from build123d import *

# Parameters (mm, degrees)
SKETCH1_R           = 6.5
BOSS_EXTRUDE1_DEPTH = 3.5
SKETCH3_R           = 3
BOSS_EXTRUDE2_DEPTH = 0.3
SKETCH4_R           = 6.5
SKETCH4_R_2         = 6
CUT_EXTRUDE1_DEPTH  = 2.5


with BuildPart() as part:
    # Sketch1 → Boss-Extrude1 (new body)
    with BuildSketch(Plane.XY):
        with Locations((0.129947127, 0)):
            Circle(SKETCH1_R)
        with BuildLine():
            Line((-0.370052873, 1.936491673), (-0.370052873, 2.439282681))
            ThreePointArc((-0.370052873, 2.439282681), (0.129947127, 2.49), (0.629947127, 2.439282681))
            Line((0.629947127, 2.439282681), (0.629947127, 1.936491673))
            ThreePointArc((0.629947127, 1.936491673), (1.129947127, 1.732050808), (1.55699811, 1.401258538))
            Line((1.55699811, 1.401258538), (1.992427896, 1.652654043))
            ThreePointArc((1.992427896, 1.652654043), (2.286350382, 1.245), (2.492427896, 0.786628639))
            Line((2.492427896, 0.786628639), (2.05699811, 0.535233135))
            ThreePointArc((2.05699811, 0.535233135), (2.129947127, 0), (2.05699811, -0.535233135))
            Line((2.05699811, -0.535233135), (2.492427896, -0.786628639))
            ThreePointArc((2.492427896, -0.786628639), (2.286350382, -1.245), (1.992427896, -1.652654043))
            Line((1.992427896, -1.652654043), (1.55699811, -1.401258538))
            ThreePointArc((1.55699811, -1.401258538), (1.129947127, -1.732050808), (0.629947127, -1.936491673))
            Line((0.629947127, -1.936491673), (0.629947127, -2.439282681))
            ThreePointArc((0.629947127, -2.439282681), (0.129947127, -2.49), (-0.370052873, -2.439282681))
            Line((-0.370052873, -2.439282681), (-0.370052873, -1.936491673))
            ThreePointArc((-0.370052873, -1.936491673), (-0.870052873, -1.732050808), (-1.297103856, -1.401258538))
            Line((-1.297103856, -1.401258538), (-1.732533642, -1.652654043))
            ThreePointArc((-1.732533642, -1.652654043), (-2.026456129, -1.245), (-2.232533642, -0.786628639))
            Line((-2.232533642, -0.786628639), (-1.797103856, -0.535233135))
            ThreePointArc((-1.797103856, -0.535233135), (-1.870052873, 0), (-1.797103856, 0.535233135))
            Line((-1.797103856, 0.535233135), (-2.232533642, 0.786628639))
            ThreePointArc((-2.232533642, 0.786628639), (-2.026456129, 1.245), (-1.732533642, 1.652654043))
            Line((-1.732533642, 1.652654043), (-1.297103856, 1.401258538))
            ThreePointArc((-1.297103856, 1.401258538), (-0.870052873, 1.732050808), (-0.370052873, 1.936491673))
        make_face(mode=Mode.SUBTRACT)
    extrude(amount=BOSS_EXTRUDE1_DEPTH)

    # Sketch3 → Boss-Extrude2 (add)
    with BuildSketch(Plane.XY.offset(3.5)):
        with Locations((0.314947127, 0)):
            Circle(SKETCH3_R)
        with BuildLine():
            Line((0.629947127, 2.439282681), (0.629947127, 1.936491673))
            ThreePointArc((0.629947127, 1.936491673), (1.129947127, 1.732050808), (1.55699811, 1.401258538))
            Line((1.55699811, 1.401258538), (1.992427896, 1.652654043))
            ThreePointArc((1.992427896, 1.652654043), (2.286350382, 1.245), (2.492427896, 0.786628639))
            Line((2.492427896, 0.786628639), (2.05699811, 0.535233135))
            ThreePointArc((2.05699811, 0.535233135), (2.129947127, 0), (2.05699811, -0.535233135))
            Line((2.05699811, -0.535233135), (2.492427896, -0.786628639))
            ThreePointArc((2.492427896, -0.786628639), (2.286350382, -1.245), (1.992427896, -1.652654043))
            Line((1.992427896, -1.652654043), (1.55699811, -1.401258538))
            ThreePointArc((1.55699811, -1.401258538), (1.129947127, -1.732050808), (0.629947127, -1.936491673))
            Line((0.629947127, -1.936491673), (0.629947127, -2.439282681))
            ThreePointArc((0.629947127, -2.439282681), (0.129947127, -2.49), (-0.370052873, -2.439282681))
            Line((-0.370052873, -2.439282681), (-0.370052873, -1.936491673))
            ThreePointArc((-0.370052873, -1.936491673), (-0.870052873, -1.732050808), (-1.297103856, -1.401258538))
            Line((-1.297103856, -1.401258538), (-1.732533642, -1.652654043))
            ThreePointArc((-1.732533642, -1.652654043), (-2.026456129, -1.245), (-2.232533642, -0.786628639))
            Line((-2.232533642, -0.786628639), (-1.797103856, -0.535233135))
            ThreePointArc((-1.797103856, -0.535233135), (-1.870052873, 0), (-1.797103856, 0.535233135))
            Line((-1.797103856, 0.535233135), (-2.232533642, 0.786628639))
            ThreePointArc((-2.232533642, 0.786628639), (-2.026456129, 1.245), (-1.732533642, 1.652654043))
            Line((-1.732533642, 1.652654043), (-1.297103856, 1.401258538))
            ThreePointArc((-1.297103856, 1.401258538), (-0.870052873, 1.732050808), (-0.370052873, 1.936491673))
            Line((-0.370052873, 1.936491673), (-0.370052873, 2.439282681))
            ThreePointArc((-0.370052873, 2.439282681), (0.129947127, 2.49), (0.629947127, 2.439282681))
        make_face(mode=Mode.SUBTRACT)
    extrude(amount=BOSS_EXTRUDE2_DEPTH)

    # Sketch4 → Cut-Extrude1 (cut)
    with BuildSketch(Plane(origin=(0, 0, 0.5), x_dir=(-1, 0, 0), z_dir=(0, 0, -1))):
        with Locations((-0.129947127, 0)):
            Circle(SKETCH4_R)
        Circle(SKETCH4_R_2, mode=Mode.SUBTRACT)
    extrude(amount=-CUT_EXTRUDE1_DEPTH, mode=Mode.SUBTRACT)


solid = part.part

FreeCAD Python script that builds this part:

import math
import FreeCAD as App
import Part
import Sketcher
Q = App.Units.Quantity

doc = App.newDocument("Part")
body = doc.addObject("PartDesign::Body", "Body")

# Sketch on XY plane
sketch1 = body.newObject("Sketcher::SketchObject", "Sketch")
sketch1.AttachmentSupport = (doc.getObject("XY_Plane"), [""])
sketch1.MapMode = "FlatFace"
sketch1.addGeometry(Part.Circle(App.Vector(0.1, 0, 0), App.Vector(0, 0, 1), 6.5), False)
sketch1.addGeometry(Part.ArcOfCircle(Part.Circle(App.Vector(0.1, 0, 0), App.Vector(0, 0, 1), 2), math.radians(104), math.radians(136)), False)
sketch1.addGeometry(Part.LineSegment(App.Vector(-0.4, 1.9, 0), App.Vector(-0.4, 2.4, 0)), False)
sketch1.addGeometry(Part.ArcOfCircle(Part.Circle(App.Vector(0.1, 0, 0), App.Vector(0, 0, 1), 2.5), math.radians(78), math.radians(102)), False)
sketch1.addGeometry(Part.LineSegment(App.Vector(0.6, 2.4, 0), App.Vector(0.6, 1.9, 0)), False)
sketch1.addGeometry(Part.ArcOfCircle(Part.Circle(App.Vector(0.1, 0, 0), App.Vector(0, 0, 1), 2), math.radians(44), math.radians(76)), False)
sketch1.addGeometry(Part.LineSegment(App.Vector(1.6, 1.4, 0), App.Vector(2, 1.7, 0)), False)
sketch1.addGeometry(Part.ArcOfCircle(Part.Circle(App.Vector(0.1, 0, 0), App.Vector(0, 0, 1), 2.5), math.radians(18), math.radians(42)), False)
sketch1.addGeometry(Part.LineSegment(App.Vector(2.5, 0.8, 0), App.Vector(2.1, 0.5, 0)), False)
sketch1.addGeometry(Part.ArcOfCircle(Part.Circle(App.Vector(0.1, 0, 0), App.Vector(0, 0, 1), 2), math.radians(-16), math.radians(16)), False)
sketch1.addGeometry(Part.LineSegment(App.Vector(2.1, -0.5, 0), App.Vector(2.5, -0.8, 0)), False)
sketch1.addGeometry(Part.ArcOfCircle(Part.Circle(App.Vector(0.1, 0, 0), App.Vector(0, 0, 1), 2.5), math.radians(-42), math.radians(-18)), False)
sketch1.addGeometry(Part.LineSegment(App.Vector(2, -1.7, 0), App.Vector(1.6, -1.4, 0)), False)
sketch1.addGeometry(Part.ArcOfCircle(Part.Circle(App.Vector(0.1, 0, 0), App.Vector(0, 0, 1), 2), math.radians(-76), math.radians(-44)), False)
sketch1.addGeometry(Part.LineSegment(App.Vector(0.6, -1.9, 0), App.Vector(0.6, -2.4, 0)), False)
sketch1.addGeometry(Part.ArcOfCircle(Part.Circle(App.Vector(0.1, 0, 0), App.Vector(0, 0, 1), 2.5), math.radians(-102), math.radians(-78)), False)
sketch1.addGeometry(Part.LineSegment(App.Vector(-0.4, -2.4, 0), App.Vector(-0.4, -1.9, 0)), False)
sketch1.addGeometry(Part.ArcOfCircle(Part.Circle(App.Vector(0.1, 0, 0), App.Vector(0, 0, 1), 2), math.radians(-136), math.radians(-104)), False)
sketch1.addGeometry(Part.LineSegment(App.Vector(-1.3, -1.4, 0), App.Vector(-1.7, -1.7, 0)), False)
sketch1.addGeometry(Part.ArcOfCircle(Part.Circle(App.Vector(0.1, 0, 0), App.Vector(0, 0, 1), 2.5), math.radians(-162), math.radians(-138)), False)
sketch1.addGeometry(Part.LineSegment(App.Vector(-2.2, -0.8, 0), App.Vector(-1.8, -0.5, 0)), False)
sketch1.addGeometry(Part.ArcOfCircle(Part.Circle(App.Vector(0.1, 0, 0), App.Vector(0, 0, 1), 2), math.radians(164), math.radians(196)), False)
sketch1.addGeometry(Part.LineSegment(App.Vector(-1.8, 0.5, 0), App.Vector(-2.2, 0.8, 0)), False)
sketch1.addGeometry(Part.ArcOfCircle(Part.Circle(App.Vector(0.1, 0, 0), App.Vector(0, 0, 1), 2.5), math.radians(138), math.radians(162)), False)
sketch1.addGeometry(Part.LineSegment(App.Vector(-1.7, 1.7, 0), App.Vector(-1.3, 1.4, 0)), False)
sketch1.addConstraint(Sketcher.Constraint("Coincident", 1, 1, 2, 1))
sketch1.addConstraint(Sketcher.Constraint("Coincident", 2, 2, 3, 2))
sketch1.addConstraint(Sketcher.Constraint("Coincident", 3, 1, 4, 1))
sketch1.addConstraint(Sketcher.Constraint("Coincident", 4, 2, 5, 2))
sketch1.addConstraint(Sketcher.Constraint("Coincident", 5, 1, 6, 1))
sketch1.addConstraint(Sketcher.Constraint("Coincident", 6, 2, 7, 2))
sketch1.addConstraint(Sketcher.Constraint("Coincident", 7, 1, 8, 1))
sketch1.addConstraint(Sketcher.Constraint("Coincident", 8, 2, 9, 2))
sketch1.addConstraint(Sketcher.Constraint("Coincident", 9, 1, 10, 1))
sketch1.addConstraint(Sketcher.Constraint("Coincident", 10, 2, 11, 2))
sketch1.addConstraint(Sketcher.Constraint("Coincident", 11, 1, 12, 1))
sketch1.addConstraint(Sketcher.Constraint("Coincident", 12, 2, 13, 2))
sketch1.addConstraint(Sketcher.Constraint("Coincident", 13, 1, 14, 1))
sketch1.addConstraint(Sketcher.Constraint("Coincident", 14, 2, 15, 2))
sketch1.addConstraint(Sketcher.Constraint("Coincident", 15, 1, 16, 1))
sketch1.addConstraint(Sketcher.Constraint("Coincident", 16, 2, 17, 2))
sketch1.addConstraint(Sketcher.Constraint("Coincident", 17, 1, 18, 1))
sketch1.addConstraint(Sketcher.Constraint("Coincident", 18, 2, 19, 2))
sketch1.addConstraint(Sketcher.Constraint("Coincident", 19, 1, 20, 1))
sketch1.addConstraint(Sketcher.Constraint("Coincident", 20, 2, 21, 2))
sketch1.addConstraint(Sketcher.Constraint("Coincident", 21, 1, 22, 1))
sketch1.addConstraint(Sketcher.Constraint("Coincident", 22, 2, 23, 2))
sketch1.addConstraint(Sketcher.Constraint("Coincident", 23, 1, 24, 1))
sketch1.addConstraint(Sketcher.Constraint("Coincident", 24, 2, 1, 2))
sketch1.addConstraint(Sketcher.Constraint("Vertical", 2))
sketch1.addConstraint(Sketcher.Constraint("Vertical", 4))
sketch1.addConstraint(Sketcher.Constraint("Vertical", 14))
sketch1.addConstraint(Sketcher.Constraint("Vertical", 16))
sketch1.addConstraint(Sketcher.Constraint("Coincident", 1, 3, 0, 3))
sketch1.addConstraint(Sketcher.Constraint("Coincident", 3, 3, 0, 3))
sketch1.addConstraint(Sketcher.Constraint("Coincident", 5, 3, 0, 3))
sketch1.addConstraint(Sketcher.Constraint("Coincident", 7, 3, 0, 3))
sketch1.addConstraint(Sketcher.Constraint("Coincident", 9, 3, 0, 3))
sketch1.addConstraint(Sketcher.Constraint("Coincident", 11, 3, 0, 3))
sketch1.addConstraint(Sketcher.Constraint("Coincident", 13, 3, 0, 3))
sketch1.addConstraint(Sketcher.Constraint("Coincident", 15, 3, 0, 3))
sketch1.addConstraint(Sketcher.Constraint("Coincident", 17, 3, 0, 3))
sketch1.addConstraint(Sketcher.Constraint("Coincident", 19, 3, 0, 3))
sketch1.addConstraint(Sketcher.Constraint("Coincident", 21, 3, 0, 3))
sketch1.addConstraint(Sketcher.Constraint("Coincident", 23, 3, 0, 3))
sketch1.addConstraint(Sketcher.Constraint("Equal", 1, 5))
sketch1.addConstraint(Sketcher.Constraint("Equal", 3, 7))
sketch1.addConstraint(Sketcher.Constraint("Equal", 5, 9))
sketch1.addConstraint(Sketcher.Constraint("Equal", 7, 11))
sketch1.addConstraint(Sketcher.Constraint("Equal", 9, 13))
sketch1.addConstraint(Sketcher.Constraint("Equal", 11, 15))
sketch1.addConstraint(Sketcher.Constraint("Equal", 13, 17))
sketch1.addConstraint(Sketcher.Constraint("Equal", 15, 19))
sketch1.addConstraint(Sketcher.Constraint("Equal", 17, 21))
sketch1.addConstraint(Sketcher.Constraint("Equal", 19, 23))
sketch1.addConstraint(Sketcher.Constraint("Symmetric", 8, 2, 9, 1, -1))
sketch1.addConstraint(Sketcher.Constraint("Parallel", 6, 8))
sketch1.addConstraint(Sketcher.Constraint("Parallel", 10, 12))
sketch1.addConstraint(Sketcher.Constraint("Parallel", 8, 18))
sketch1.addConstraint(Sketcher.Constraint("Parallel", 18, 20))
sketch1.addConstraint(Sketcher.Constraint("Parallel", 12, 22))
sketch1.addConstraint(Sketcher.Constraint("Parallel", 22, 24))
sketch1.addConstraint(Sketcher.Constraint("Horizontal", 2, 2, 3, 1))
sketch1.addConstraint(Sketcher.Constraint("Horizontal", 14, 2, 15, 1))
sketch1.addConstraint(Sketcher.Constraint("Horizontal", 12, 2, 17, 1))
sketch1.addConstraint(Sketcher.Constraint("Horizontal", 11, 1, 18, 2))
sketch1.addConstraint(Sketcher.Constraint("Horizontal", 10, 2, 19, 1))
sketch1.addConstraint(Sketcher.Constraint("Horizontal", 8, 2, 21, 1))
sketch1.addConstraint(Sketcher.Constraint("Horizontal", 6, 2, 23, 1))
sketch1.addConstraint(Sketcher.Constraint("Vertical", 6, 2, 11, 1))
sketch1.addConstraint(Sketcher.Constraint("Vertical", 4, 2, 13, 1))
sketch1.addConstraint(Sketcher.Constraint("Equal", 6, 8))
sketch1.addConstraint(Sketcher.Constraint("Diameter", 0, Q("13 mm")))
sketch1.addConstraint(Sketcher.Constraint("Radius", 1, Q("2 mm")))
sketch1.addConstraint(Sketcher.Constraint("Angle", 6, Q("30 deg")))
sketch1.addConstraint(Sketcher.Constraint("Radius", 3, Q("2.49 mm")))
sketch1.addConstraint(Sketcher.Constraint("DistanceX", 2, 2, 3, 1, Q("1 mm")))
sketch1.addConstraint(Sketcher.Constraint("DistanceX", 6, 2, 7, 1, Q("0.5 mm")))
sketch1.addConstraint(Sketcher.Constraint("DistanceX", -1, 1, 5, 1, Q("1.556998 mm")))
pad1 = body.newObject("PartDesign::Pad", "Pad")
pad1.Profile = sketch1
pad1.Length = 3.5

# Sketch on XY plane
sketch2 = body.newObject("Sketcher::SketchObject", "Sketch001")
sketch2.AttachmentSupport = (doc.getObject("XY_Plane"), [""])
sketch2.MapMode = "FlatFace"
sketch2.AttachmentOffset = App.Placement(App.Vector(0, 0, 3.5), App.Rotation())
sketch2.addGeometry(Part.Circle(App.Vector(0.3, 0, 0), App.Vector(0, 0, 1), 3), False)
sketch2.addGeometry(Part.ArcOfCircle(Part.Circle(App.Vector(0.1, 0, 0), App.Vector(0, 0, 1), 2.5), math.radians(78), math.radians(102)), False)
sketch2.addGeometry(Part.LineSegment(App.Vector(0.6, 2.4, 0), App.Vector(0.6, 1.9, 0)), False)
sketch2.addGeometry(Part.ArcOfCircle(Part.Circle(App.Vector(0.1, 0, 0), App.Vector(0, 0, 1), 2), math.radians(44), math.radians(76)), False)
sketch2.addGeometry(Part.LineSegment(App.Vector(1.6, 1.4, 0), App.Vector(2, 1.7, 0)), False)
sketch2.addGeometry(Part.ArcOfCircle(Part.Circle(App.Vector(0.1, 0, 0), App.Vector(0, 0, 1), 2.5), math.radians(18), math.radians(42)), False)
sketch2.addGeometry(Part.LineSegment(App.Vector(2.5, 0.8, 0), App.Vector(2.1, 0.5, 0)), False)
sketch2.addGeometry(Part.ArcOfCircle(Part.Circle(App.Vector(0.1, 0, 0), App.Vector(0, 0, 1), 2), math.radians(-16), math.radians(16)), False)
sketch2.addGeometry(Part.LineSegment(App.Vector(2.1, -0.5, 0), App.Vector(2.5, -0.8, 0)), False)
sketch2.addGeometry(Part.ArcOfCircle(Part.Circle(App.Vector(0.1, 0, 0), App.Vector(0, 0, 1), 2.5), math.radians(-42), math.radians(-18)), False)
sketch2.addGeometry(Part.LineSegment(App.Vector(2, -1.7, 0), App.Vector(1.6, -1.4, 0)), False)
sketch2.addGeometry(Part.ArcOfCircle(Part.Circle(App.Vector(0.1, 0, 0), App.Vector(0, 0, 1), 2), math.radians(-76), math.radians(-44)), False)
sketch2.addGeometry(Part.LineSegment(App.Vector(0.6, -1.9, 0), App.Vector(0.6, -2.4, 0)), False)
sketch2.addGeometry(Part.ArcOfCircle(Part.Circle(App.Vector(0.1, 0, 0), App.Vector(0, 0, 1), 2.5), math.radians(-102), math.radians(-78)), False)
sketch2.addGeometry(Part.LineSegment(App.Vector(-0.4, -2.4, 0), App.Vector(-0.4, -1.9, 0)), False)
sketch2.addGeometry(Part.ArcOfCircle(Part.Circle(App.Vector(0.1, 0, 0), App.Vector(0, 0, 1), 2), math.radians(-136), math.radians(-104)), False)
sketch2.addGeometry(Part.LineSegment(App.Vector(-1.3, -1.4, 0), App.Vector(-1.7, -1.7, 0)), False)
sketch2.addGeometry(Part.ArcOfCircle(Part.Circle(App.Vector(0.1, 0, 0), App.Vector(0, 0, 1), 2.5), math.radians(-162), math.radians(-138)), False)
sketch2.addGeometry(Part.LineSegment(App.Vector(-2.2, -0.8, 0), App.Vector(-1.8, -0.5, 0)), False)
sketch2.addGeometry(Part.ArcOfCircle(Part.Circle(App.Vector(0.1, 0, 0), App.Vector(0, 0, 1), 2), math.radians(164), math.radians(196)), False)
sketch2.addGeometry(Part.LineSegment(App.Vector(-1.8, 0.5, 0), App.Vector(-2.2, 0.8, 0)), False)
sketch2.addGeometry(Part.ArcOfCircle(Part.Circle(App.Vector(0.1, 0, 0), App.Vector(0, 0, 1), 2.5), math.radians(138), math.radians(162)), False)
sketch2.addGeometry(Part.LineSegment(App.Vector(-1.7, 1.7, 0), App.Vector(-1.3, 1.4, 0)), False)
sketch2.addGeometry(Part.ArcOfCircle(Part.Circle(App.Vector(0.1, 0, 0), App.Vector(0, 0, 1), 2), math.radians(104), math.radians(136)), False)
sketch2.addGeometry(Part.LineSegment(App.Vector(-0.4, 1.9, 0), App.Vector(-0.4, 2.4, 0)), False)
sketch2.addConstraint(Sketcher.Constraint("Coincident", 1, 1, 2, 1))
sketch2.addConstraint(Sketcher.Constraint("Coincident", 2, 2, 3, 2))
sketch2.addConstraint(Sketcher.Constraint("Coincident", 3, 1, 4, 1))
sketch2.addConstraint(Sketcher.Constraint("Coincident", 4, 2, 5, 2))
sketch2.addConstraint(Sketcher.Constraint("Coincident", 5, 1, 6, 1))
sketch2.addConstraint(Sketcher.Constraint("Coincident", 6, 2, 7, 2))
sketch2.addConstraint(Sketcher.Constraint("Coincident", 7, 1, 8, 1))
sketch2.addConstraint(Sketcher.Constraint("Coincident", 8, 2, 9, 2))
sketch2.addConstraint(Sketcher.Constraint("Coincident", 9, 1, 10, 1))
sketch2.addConstraint(Sketcher.Constraint("Coincident", 10, 2, 11, 2))
sketch2.addConstraint(Sketcher.Constraint("Coincident", 11, 1, 12, 1))
sketch2.addConstraint(Sketcher.Constraint("Coincident", 12, 2, 13, 2))
sketch2.addConstraint(Sketcher.Constraint("Coincident", 13, 1, 14, 1))
sketch2.addConstraint(Sketcher.Constraint("Coincident", 14, 2, 15, 2))
sketch2.addConstraint(Sketcher.Constraint("Coincident", 15, 1, 16, 1))
sketch2.addConstraint(Sketcher.Constraint("Coincident", 16, 2, 17, 2))
sketch2.addConstraint(Sketcher.Constraint("Coincident", 17, 1, 18, 1))
sketch2.addConstraint(Sketcher.Constraint("Coincident", 18, 2, 19, 2))
sketch2.addConstraint(Sketcher.Constraint("Coincident", 19, 1, 20, 1))
sketch2.addConstraint(Sketcher.Constraint("Coincident", 20, 2, 21, 2))
sketch2.addConstraint(Sketcher.Constraint("Coincident", 21, 1, 22, 1))
sketch2.addConstraint(Sketcher.Constraint("Coincident", 22, 2, 23, 2))
sketch2.addConstraint(Sketcher.Constraint("Coincident", 23, 1, 24, 1))
sketch2.addConstraint(Sketcher.Constraint("Coincident", 24, 2, 1, 2))
sketch2.addConstraint(Sketcher.Constraint("Vertical", 2))
sketch2.addConstraint(Sketcher.Constraint("Vertical", 12))
sketch2.addConstraint(Sketcher.Constraint("Vertical", 14))
sketch2.addConstraint(Sketcher.Constraint("Vertical", 24))
sketch2.addConstraint(Sketcher.Constraint("Coincident", 3, 3, 1, 3))
sketch2.addConstraint(Sketcher.Constraint("Coincident", 5, 3, 1, 3))
sketch2.addConstraint(Sketcher.Constraint("Coincident", 7, 3, 1, 3))
sketch2.addConstraint(Sketcher.Constraint("Coincident", 9, 3, 1, 3))
sketch2.addConstraint(Sketcher.Constraint("Coincident", 11, 3, 1, 3))
sketch2.addConstraint(Sketcher.Constraint("Coincident", 13, 3, 1, 3))
sketch2.addConstraint(Sketcher.Constraint("Coincident", 15, 3, 1, 3))
sketch2.addConstraint(Sketcher.Constraint("Coincident", 17, 3, 1, 3))
sketch2.addConstraint(Sketcher.Constraint("Coincident", 19, 3, 1, 3))
sketch2.addConstraint(Sketcher.Constraint("Coincident", 21, 3, 1, 3))
sketch2.addConstraint(Sketcher.Constraint("Coincident", 23, 3, 1, 3))
sketch2.addConstraint(Sketcher.Constraint("Equal", 1, 5))
sketch2.addConstraint(Sketcher.Constraint("Equal", 3, 7))
sketch2.addConstraint(Sketcher.Constraint("Equal", 5, 9))
sketch2.addConstraint(Sketcher.Constraint("Equal", 7, 11))
sketch2.addConstraint(Sketcher.Constraint("Equal", 9, 13))
sketch2.addConstraint(Sketcher.Constraint("Equal", 11, 15))
sketch2.addConstraint(Sketcher.Constraint("Equal", 13, 17))
sketch2.addConstraint(Sketcher.Constraint("Equal", 15, 19))
sketch2.addConstraint(Sketcher.Constraint("Equal", 17, 21))
sketch2.addConstraint(Sketcher.Constraint("Equal", 19, 23))
sketch2.addConstraint(Sketcher.Constraint("Symmetric", 6, 2, 7, 1, -1))
sketch2.addConstraint(Sketcher.Constraint("PointOnObject", 0, 3, -1))
sketch2.addConstraint(Sketcher.Constraint("Parallel", 4, 6))
sketch2.addConstraint(Sketcher.Constraint("Parallel", 8, 10))
sketch2.addConstraint(Sketcher.Constraint("Parallel", 6, 16))
sketch2.addConstraint(Sketcher.Constraint("Parallel", 16, 18))
sketch2.addConstraint(Sketcher.Constraint("Parallel", 10, 20))
sketch2.addConstraint(Sketcher.Constraint("Parallel", 20, 22))
sketch2.addConstraint(Sketcher.Constraint("Horizontal", 12, 2, 13, 1))
sketch2.addConstraint(Sketcher.Constraint("Horizontal", 10, 2, 15, 1))
sketch2.addConstraint(Sketcher.Constraint("Horizontal", 9, 1, 16, 2))
sketch2.addConstraint(Sketcher.Constraint("Horizontal", 8, 2, 17, 1))
sketch2.addConstraint(Sketcher.Constraint("Horizontal", 6, 2, 19, 1))
sketch2.addConstraint(Sketcher.Constraint("Horizontal", 4, 2, 21, 1))
sketch2.addConstraint(Sketcher.Constraint("Horizontal", 2, 2, 23, 1))
sketch2.addConstraint(Sketcher.Constraint("Vertical", 4, 2, 9, 1))
sketch2.addConstraint(Sketcher.Constraint("Vertical", 2, 2, 11, 1))
sketch2.addConstraint(Sketcher.Constraint("Equal", 4, 6))
sketch2.addConstraint(Sketcher.Constraint("Diameter", 0, Q("6 mm")))
sketch2.addConstraint(Sketcher.Constraint("Radius", 3, Q("2 mm")))
sketch2.addConstraint(Sketcher.Constraint("Angle", 4, Q("30 deg")))
sketch2.addConstraint(Sketcher.Constraint("Radius", 1, Q("2.49 mm")))
sketch2.addConstraint(Sketcher.Constraint("DistanceX", 13, 1, 12, 2, Q("1 mm")))
sketch2.addConstraint(Sketcher.Constraint("DistanceX", 4, 2, 5, 1, Q("0.5 mm")))
sketch2.addConstraint(Sketcher.Constraint("DistanceX", -1, 1, 3, 1, Q("1.556998 mm")))
sketch2.addConstraint(Sketcher.Constraint("DistanceX", 1, 3, 0, 3, Q("0.185 mm")))
pad2 = body.newObject("PartDesign::Pad", "Pad001")
pad2.Profile = sketch2
pad2.Length = 0.3

# Sketch on XY plane
sketch3 = body.newObject("Sketcher::SketchObject", "Sketch002")
sketch3.AttachmentSupport = (doc.getObject("XY_Plane"), [""])
sketch3.MapMode = "FlatFace"
sketch3.AttachmentOffset = App.Placement(App.Vector(0, 0, 0.5), App.Rotation())
sketch3.addGeometry(Part.Circle(App.Vector(0, 0, 0), App.Vector(0, 0, 1), 6), False)
sketch3.addGeometry(Part.Circle(App.Vector(0, 0, 0), App.Vector(0, 0, 1), 6), False)
sketch3.addConstraint(Sketcher.Constraint("Coincident", 1, 3, -1, 1))
sketch3.addConstraint(Sketcher.Constraint("PointOnObject", 0, 3, -1))
sketch3.addConstraint(Sketcher.Constraint("Diameter", 0, Q("13 mm")))
sketch3.addConstraint(Sketcher.Constraint("Diameter", 1, Q("12 mm")))
sketch3.addConstraint(Sketcher.Constraint("DistanceX", -1, 1, 0, 3, Q("0.129947 mm")))
pocket1 = body.newObject("PartDesign::Pocket", "Pocket")
pocket1.Profile = sketch3
pocket1.Length = 2.5
pocket1.Reversed = True

doc.recompute()
